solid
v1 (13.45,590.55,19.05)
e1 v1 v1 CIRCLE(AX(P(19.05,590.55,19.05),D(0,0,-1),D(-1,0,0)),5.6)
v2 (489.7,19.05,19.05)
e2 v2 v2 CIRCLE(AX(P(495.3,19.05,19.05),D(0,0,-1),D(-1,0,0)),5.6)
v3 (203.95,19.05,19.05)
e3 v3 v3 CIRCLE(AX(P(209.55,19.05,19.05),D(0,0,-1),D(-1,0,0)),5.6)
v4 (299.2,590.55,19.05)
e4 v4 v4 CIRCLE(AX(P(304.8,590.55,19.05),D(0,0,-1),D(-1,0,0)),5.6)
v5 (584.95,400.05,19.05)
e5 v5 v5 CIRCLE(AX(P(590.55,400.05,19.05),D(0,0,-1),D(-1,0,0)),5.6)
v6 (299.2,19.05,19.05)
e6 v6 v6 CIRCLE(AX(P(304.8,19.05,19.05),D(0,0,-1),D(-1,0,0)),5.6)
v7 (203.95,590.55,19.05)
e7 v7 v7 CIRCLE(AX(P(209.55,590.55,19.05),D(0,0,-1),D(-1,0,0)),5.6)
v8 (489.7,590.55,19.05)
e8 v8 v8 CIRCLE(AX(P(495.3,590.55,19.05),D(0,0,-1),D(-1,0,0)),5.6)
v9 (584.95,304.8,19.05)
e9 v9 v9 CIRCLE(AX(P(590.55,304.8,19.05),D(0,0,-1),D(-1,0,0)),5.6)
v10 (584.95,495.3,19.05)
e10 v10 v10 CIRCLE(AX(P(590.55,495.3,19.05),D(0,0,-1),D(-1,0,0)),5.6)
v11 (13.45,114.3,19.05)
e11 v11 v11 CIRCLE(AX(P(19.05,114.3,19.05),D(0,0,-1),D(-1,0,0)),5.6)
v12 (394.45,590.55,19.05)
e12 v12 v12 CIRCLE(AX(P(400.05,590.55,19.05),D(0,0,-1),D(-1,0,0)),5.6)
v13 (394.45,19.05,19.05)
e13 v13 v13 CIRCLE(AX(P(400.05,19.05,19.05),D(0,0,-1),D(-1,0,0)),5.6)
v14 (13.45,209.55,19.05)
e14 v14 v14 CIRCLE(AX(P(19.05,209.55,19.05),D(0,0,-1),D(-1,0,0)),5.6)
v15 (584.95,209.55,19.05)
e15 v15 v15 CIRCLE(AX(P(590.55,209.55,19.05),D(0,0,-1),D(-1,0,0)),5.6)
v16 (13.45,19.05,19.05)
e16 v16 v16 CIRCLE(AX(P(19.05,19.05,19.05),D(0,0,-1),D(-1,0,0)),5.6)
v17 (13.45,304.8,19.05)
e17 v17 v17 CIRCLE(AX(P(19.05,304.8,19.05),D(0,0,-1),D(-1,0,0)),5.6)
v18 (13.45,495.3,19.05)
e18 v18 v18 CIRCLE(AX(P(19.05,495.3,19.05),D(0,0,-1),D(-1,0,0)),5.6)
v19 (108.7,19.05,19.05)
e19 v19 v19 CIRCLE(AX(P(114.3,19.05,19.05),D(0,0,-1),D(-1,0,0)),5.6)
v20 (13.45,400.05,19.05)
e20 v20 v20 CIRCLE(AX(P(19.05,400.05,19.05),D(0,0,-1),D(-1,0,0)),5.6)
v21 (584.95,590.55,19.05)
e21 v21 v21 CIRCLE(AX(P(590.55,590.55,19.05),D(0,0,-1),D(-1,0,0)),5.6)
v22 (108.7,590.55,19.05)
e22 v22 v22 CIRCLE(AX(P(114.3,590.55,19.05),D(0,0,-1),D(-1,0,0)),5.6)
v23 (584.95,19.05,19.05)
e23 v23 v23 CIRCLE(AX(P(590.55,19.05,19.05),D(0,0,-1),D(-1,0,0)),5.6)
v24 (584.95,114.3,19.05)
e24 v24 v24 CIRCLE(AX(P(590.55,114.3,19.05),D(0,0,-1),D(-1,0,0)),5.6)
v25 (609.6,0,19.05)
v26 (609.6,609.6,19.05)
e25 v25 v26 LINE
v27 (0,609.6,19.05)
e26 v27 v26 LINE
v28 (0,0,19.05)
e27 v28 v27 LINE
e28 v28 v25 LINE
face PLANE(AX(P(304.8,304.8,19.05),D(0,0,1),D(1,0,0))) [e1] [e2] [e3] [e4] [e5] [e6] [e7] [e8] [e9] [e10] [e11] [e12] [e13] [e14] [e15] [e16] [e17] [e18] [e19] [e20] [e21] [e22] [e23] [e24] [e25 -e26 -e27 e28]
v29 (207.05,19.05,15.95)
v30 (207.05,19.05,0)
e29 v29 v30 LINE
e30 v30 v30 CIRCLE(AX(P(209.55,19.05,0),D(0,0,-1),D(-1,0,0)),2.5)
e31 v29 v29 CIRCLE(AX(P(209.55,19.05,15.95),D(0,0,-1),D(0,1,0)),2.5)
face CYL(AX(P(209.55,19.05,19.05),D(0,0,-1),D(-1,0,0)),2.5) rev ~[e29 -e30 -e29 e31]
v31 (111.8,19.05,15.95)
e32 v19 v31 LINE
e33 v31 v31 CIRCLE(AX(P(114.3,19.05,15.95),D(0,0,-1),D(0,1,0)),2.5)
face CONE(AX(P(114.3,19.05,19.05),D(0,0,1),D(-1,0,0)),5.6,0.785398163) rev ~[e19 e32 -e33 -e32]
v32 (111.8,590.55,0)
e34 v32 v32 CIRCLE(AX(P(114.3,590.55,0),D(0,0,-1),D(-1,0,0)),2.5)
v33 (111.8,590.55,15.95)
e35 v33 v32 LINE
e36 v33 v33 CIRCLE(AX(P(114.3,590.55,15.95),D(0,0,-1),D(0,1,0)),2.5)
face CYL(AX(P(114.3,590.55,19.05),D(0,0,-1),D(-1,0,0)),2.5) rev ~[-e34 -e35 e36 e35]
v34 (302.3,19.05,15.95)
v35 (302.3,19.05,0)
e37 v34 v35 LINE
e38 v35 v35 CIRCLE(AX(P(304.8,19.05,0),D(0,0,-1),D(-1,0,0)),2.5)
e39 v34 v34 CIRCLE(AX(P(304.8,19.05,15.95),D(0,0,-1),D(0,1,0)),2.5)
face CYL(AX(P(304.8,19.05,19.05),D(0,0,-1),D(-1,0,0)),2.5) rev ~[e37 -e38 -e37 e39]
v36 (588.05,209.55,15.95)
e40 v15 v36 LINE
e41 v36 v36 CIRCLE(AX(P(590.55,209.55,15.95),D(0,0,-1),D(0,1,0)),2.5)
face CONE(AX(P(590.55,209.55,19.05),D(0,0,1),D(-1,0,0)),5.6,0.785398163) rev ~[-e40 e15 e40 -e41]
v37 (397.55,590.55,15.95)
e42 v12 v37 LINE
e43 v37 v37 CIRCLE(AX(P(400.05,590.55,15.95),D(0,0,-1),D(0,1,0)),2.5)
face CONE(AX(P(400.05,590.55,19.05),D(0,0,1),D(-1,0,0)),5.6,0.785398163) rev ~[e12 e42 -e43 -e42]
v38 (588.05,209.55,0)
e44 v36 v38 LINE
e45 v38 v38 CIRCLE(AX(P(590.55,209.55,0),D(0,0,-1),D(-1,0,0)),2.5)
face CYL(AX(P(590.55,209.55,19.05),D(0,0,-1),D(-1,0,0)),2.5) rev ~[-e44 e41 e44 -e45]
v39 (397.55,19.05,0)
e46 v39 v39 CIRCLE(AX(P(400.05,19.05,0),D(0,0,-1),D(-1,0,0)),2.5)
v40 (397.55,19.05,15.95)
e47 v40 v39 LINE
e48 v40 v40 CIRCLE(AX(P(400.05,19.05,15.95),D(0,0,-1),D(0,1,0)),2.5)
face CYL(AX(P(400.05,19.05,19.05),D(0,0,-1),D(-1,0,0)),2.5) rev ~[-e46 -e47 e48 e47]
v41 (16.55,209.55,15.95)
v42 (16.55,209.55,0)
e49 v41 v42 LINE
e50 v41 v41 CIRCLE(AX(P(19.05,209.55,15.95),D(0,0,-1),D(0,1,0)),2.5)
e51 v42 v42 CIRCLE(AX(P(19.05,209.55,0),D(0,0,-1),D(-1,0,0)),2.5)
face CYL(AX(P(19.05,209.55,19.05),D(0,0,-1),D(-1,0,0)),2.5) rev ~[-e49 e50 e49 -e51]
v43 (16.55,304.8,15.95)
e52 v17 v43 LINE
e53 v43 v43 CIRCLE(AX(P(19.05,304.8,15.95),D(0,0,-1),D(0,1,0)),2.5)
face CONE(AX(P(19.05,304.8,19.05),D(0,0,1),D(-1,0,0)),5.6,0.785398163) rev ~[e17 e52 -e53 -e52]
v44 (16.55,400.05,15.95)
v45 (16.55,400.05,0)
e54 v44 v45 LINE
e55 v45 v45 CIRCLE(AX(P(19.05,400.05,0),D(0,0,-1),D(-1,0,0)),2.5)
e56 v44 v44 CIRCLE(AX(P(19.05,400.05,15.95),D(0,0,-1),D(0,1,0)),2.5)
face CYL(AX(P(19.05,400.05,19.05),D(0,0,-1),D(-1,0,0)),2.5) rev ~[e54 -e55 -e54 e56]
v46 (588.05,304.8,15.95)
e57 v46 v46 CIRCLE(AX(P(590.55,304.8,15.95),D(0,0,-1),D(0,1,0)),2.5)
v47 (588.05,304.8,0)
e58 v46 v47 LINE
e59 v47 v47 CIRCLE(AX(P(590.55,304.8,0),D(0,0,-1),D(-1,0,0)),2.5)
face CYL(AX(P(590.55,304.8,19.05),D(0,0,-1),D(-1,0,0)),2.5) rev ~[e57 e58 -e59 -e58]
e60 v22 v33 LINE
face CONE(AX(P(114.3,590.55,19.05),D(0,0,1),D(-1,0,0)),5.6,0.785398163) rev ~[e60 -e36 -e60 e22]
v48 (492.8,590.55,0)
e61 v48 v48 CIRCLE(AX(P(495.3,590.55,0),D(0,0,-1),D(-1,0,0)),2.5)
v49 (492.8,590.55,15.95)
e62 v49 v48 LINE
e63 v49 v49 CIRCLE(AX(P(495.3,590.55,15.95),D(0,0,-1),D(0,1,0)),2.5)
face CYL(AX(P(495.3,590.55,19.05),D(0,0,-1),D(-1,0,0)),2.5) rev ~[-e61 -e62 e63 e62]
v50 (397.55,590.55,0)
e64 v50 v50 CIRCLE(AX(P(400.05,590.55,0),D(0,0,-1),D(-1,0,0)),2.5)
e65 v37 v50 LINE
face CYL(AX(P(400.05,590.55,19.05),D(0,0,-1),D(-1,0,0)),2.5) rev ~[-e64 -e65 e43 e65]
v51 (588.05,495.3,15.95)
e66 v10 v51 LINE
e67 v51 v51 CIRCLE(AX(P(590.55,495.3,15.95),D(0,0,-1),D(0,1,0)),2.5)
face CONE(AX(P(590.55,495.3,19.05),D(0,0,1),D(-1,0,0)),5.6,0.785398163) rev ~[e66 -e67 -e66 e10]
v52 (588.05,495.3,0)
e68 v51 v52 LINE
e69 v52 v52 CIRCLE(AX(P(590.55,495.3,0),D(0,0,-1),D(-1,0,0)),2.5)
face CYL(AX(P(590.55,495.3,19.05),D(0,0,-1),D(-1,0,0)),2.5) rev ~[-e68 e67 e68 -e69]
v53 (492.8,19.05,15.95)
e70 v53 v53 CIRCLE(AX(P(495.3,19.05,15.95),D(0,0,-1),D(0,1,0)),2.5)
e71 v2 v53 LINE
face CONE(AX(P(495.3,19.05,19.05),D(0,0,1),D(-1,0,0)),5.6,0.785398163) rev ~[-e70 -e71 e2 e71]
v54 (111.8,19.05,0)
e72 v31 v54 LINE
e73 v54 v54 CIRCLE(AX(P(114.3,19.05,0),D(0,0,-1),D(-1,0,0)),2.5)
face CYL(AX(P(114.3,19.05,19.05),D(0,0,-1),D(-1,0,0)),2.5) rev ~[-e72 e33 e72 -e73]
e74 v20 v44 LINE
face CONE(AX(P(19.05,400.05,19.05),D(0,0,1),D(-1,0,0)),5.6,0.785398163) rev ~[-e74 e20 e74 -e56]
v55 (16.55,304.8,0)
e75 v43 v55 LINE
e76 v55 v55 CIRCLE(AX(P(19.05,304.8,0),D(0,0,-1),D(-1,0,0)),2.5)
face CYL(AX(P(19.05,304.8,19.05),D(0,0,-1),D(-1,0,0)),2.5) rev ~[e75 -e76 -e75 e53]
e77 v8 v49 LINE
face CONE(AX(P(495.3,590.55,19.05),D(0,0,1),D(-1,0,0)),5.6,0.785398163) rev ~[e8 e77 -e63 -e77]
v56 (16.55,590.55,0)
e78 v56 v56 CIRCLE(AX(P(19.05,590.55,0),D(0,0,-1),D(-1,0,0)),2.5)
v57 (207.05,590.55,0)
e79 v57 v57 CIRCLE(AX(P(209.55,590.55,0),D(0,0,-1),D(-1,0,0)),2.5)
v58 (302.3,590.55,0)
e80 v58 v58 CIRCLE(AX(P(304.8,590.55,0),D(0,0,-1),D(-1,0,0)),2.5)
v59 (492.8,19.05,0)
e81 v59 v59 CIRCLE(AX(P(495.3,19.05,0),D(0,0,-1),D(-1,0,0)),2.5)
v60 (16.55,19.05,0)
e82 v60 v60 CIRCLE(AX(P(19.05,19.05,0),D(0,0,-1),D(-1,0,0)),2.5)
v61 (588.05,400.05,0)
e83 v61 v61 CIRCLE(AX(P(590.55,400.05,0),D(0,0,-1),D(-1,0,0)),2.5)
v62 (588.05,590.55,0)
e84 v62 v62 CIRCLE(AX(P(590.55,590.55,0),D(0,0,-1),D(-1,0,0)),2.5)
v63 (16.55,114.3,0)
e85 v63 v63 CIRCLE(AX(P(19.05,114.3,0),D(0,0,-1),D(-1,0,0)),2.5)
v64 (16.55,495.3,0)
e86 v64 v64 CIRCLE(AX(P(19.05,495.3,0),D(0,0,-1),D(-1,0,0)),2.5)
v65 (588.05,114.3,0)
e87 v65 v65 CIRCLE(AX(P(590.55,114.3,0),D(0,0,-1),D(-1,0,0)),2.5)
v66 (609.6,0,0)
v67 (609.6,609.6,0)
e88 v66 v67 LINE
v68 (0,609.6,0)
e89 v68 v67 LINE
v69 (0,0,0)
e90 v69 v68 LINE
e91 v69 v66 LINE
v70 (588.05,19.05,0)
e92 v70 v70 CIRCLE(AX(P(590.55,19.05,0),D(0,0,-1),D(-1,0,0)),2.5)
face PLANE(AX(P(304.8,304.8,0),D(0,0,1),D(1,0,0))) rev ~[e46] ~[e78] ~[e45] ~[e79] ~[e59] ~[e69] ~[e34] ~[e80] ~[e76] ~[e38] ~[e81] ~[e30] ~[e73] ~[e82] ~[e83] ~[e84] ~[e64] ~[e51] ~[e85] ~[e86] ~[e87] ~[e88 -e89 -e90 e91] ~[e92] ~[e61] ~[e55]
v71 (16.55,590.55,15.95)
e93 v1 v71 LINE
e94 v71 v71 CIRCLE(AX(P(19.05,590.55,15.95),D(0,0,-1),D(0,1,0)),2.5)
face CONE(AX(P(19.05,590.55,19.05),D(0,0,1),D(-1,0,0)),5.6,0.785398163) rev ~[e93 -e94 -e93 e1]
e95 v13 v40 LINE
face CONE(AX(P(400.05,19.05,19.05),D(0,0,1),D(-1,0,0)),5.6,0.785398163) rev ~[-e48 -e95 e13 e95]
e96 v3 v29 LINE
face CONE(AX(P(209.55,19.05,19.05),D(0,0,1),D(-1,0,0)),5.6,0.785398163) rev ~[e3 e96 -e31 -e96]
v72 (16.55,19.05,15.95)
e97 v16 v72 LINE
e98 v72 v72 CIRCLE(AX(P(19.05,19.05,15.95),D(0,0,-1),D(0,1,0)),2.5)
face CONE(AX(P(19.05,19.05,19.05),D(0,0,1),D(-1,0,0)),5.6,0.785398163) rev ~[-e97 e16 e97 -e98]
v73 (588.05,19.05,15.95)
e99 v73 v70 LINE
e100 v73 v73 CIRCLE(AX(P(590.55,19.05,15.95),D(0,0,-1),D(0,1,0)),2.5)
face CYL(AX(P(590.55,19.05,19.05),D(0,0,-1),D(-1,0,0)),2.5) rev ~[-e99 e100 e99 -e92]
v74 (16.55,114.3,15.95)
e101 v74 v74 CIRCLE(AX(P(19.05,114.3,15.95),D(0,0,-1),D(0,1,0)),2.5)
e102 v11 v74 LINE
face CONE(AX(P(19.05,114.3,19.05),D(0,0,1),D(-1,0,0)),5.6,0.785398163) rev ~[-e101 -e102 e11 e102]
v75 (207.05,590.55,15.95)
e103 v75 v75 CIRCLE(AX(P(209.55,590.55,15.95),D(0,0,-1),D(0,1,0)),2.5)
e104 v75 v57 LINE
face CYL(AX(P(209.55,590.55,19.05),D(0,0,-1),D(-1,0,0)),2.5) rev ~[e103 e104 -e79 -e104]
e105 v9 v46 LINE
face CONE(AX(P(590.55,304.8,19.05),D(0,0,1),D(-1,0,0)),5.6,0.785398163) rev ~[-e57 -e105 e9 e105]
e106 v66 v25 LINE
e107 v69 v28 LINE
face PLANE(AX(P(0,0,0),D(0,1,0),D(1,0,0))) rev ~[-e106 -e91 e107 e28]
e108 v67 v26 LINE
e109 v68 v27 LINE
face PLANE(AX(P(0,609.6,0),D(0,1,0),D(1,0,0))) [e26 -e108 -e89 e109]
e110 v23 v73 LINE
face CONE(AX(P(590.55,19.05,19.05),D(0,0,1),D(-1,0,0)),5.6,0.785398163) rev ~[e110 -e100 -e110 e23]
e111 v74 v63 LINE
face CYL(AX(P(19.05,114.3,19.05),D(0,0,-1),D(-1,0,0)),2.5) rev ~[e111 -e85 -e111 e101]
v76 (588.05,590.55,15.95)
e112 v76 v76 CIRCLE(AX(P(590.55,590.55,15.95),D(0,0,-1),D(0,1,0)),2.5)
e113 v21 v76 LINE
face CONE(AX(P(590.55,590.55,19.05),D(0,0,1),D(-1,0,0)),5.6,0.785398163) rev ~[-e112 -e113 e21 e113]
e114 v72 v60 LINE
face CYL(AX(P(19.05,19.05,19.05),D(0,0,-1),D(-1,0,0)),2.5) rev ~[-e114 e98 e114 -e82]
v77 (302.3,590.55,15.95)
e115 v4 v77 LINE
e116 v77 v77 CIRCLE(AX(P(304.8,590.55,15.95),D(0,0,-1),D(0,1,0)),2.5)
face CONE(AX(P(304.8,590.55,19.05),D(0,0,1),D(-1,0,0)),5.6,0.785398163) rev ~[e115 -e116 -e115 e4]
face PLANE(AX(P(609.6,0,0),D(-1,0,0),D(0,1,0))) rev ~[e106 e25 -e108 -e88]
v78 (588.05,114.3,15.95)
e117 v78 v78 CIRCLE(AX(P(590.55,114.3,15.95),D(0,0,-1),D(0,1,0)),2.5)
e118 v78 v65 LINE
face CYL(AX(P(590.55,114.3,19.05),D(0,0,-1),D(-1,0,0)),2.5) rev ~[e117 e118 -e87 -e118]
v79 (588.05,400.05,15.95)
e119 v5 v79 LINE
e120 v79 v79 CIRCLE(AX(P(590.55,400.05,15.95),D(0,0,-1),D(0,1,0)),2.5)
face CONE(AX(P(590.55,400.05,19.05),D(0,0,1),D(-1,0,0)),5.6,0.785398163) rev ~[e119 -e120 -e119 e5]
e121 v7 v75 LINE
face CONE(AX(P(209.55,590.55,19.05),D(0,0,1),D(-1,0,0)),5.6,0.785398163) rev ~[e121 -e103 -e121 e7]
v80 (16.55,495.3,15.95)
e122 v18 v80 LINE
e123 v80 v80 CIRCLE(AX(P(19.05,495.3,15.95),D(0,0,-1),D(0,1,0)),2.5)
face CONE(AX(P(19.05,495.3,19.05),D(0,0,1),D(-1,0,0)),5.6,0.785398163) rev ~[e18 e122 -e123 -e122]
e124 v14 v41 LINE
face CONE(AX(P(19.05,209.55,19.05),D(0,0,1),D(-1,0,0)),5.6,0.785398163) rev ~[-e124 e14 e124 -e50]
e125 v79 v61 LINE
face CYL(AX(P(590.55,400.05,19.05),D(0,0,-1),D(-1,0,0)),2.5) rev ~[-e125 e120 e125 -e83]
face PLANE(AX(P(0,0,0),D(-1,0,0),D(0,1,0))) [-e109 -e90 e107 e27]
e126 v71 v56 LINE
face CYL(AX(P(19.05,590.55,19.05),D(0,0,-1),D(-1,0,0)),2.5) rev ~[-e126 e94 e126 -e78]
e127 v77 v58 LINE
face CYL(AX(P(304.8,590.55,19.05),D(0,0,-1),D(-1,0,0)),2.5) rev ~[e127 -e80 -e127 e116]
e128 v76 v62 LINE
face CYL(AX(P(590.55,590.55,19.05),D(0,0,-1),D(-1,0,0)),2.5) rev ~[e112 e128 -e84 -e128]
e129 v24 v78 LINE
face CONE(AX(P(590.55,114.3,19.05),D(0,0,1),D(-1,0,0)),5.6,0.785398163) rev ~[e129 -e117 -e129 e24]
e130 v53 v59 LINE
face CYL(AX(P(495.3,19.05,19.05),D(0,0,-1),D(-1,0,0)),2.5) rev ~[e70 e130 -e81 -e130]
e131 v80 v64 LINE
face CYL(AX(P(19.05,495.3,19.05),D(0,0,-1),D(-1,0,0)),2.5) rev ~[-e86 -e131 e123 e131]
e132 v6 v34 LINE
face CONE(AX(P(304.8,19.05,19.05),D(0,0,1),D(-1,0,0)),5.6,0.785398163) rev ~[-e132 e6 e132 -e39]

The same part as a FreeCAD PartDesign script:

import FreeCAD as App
import Part
import Sketcher

V = App.Vector
Q = App.Units.Quantity

doc = App.newDocument("Part")
body = doc.addObject("PartDesign::Body", "Body")

sketch1 = body.newObject("Sketcher::SketchObject", "Sketch")
sketch1.AttachmentSupport = (doc.getObject("XY_Plane"), [""])
sketch1.MapMode = "FlatFace"
sketch1.addGeometry([
    Part.LineSegment(V(0, 609.6, 0), V(0, 0, 0)),
    Part.LineSegment(V(0, 0, 0), V(609.6, 0, 0)),
    Part.LineSegment(V(609.6, 0, 0), V(609.6, 609.6, 0)),
    Part.LineSegment(V(609.6, 609.6, 0), V(0, 609.6, 0)),
], False)
sketch1.addConstraint([
    Sketcher.Constraint("Coincident", 0, 2, 1, 1),
    Sketcher.Constraint("Coincident", 1, 2, 2, 1),
    Sketcher.Constraint("Coincident", 2, 2, 3, 1),
    Sketcher.Constraint("Coincident", 3, 2, 0, 1),
    Sketcher.Constraint("Vertical", 0),
    Sketcher.Constraint("Horizontal", 1),
    Sketcher.Constraint("Vertical", 2),
    Sketcher.Constraint("Horizontal", 3),
    Sketcher.Constraint("Coincident", 0, 2, -1, 1),
    Sketcher.Constraint("Equal", 3, 0),
    Sketcher.Constraint("DistanceX", 1, 1, 1, 2, Q("24 in")),
])
pad1 = body.newObject("PartDesign::Pad", "Pad")
pad1.Profile = sketch1
pad1.Length = Q("0.75 in")

sketch2 = body.newObject("Sketcher::SketchObject", "Sketch001")
sketch2.AttachmentSupport = (doc.getObject("XY_Plane"), [""])
sketch2.MapMode = "FlatFace"
sketch2.AttachmentOffset = App.Placement(V(0, 0, 0.75 * 25.4), App.Rotation())
sketch2.addGeometry([
    Part.Circle(V(19.05, 304.8, 0), V(0, 0, 1), 2.5),
    Part.Circle(V(19.05, 400.05, 0), V(0, 0, 1), 2.5),
    Part.Circle(V(19.05, 495.3, 0), V(0, 0, 1), 2.5),
    Part.Circle(V(19.05, 590.55, 0), V(0, 0, 1), 2.5),
    Part.Circle(V(114.3, 590.55, 0), V(0, 0, 1), 2.5),
    Part.Circle(V(209.55, 590.55, 0), V(0, 0, 1), 2.5),
    Part.Circle(V(304.8, 590.55, 0), V(0, 0, 1), 2.5),
    Part.Circle(V(400.05, 590.55, 0), V(0, 0, 1), 2.5),
    Part.Circle(V(495.3, 590.55, 0), V(0, 0, 1), 2.5),
    Part.Circle(V(590.55, 590.55, 0), V(0, 0, 1), 2.5),
    Part.Circle(V(590.55, 495.3, 0), V(0, 0, 1), 2.5),
    Part.Circle(V(590.55, 400.05, 0), V(0, 0, 1), 2.5),
    Part.Circle(V(590.55, 304.8, 0), V(0, 0, 1), 2.5),
    Part.Circle(V(590.55, 209.55, 0), V(0, 0, 1), 2.5),
    Part.Circle(V(590.55, 114.3, 0), V(0, 0, 1), 2.5),
    Part.Circle(V(590.55, 19.05, 0), V(0, 0, 1), 2.5),
    Part.Circle(V(495.3, 19.05, 0), V(0, 0, 1), 2.5),
    Part.Circle(V(400.05, 19.05, 0), V(0, 0, 1), 2.5),
    Part.Circle(V(304.8, 19.05, 0), V(0, 0, 1), 2.5),
    Part.Circle(V(209.55, 19.05, 0), V(0, 0, 1), 2.5),
    Part.Circle(V(114.3, 19.05, 0), V(0, 0, 1), 2.5),
    Part.Circle(V(19.05, 19.05, 0), V(0, 0, 1), 2.5),
    Part.Circle(V(19.05, 114.3, 0), V(0, 0, 1), 2.5),
    Part.Circle(V(19.05, 209.55, 0), V(0, 0, 1), 2.5),
    Part.Circle(V(19.05, 114.3, 0), V(0, 0, 1), 2.5),
], False)
sketch2.addConstraint([
    Sketcher.Constraint("Coincident", 24, 3, 22, 3),
    Sketcher.Constraint("Equal", 0, 1),
    Sketcher.Constraint("Equal", 1, 2),
    Sketcher.Constraint("Equal", 2, 3),
    Sketcher.Constraint("Equal", 3, 4),
    Sketcher.Constraint("Equal", 4, 5),
    Sketcher.Constraint("Equal", 5, 6),
    Sketcher.Constraint("Equal", 6, 7),
    Sketcher.Constraint("Equal", 7, 8),
    Sketcher.Constraint("Equal", 8, 9),
    Sketcher.Constraint("Equal", 9, 10),
    Sketcher.Constraint("Equal", 10, 11),
    Sketcher.Constraint("Equal", 11, 12),
    Sketcher.Constraint("Equal", 12, 13),
    Sketcher.Constraint("Equal", 13, 14),
    Sketcher.Constraint("Equal", 14, 15),
    Sketcher.Constraint("Equal", 15, 16),
    Sketcher.Constraint("Equal", 16, 17),
    Sketcher.Constraint("Equal", 17, 18),
    Sketcher.Constraint("Equal", 18, 19),
    Sketcher.Constraint("Equal", 19, 20),
    Sketcher.Constraint("Equal", 20, 21),
    Sketcher.Constraint("Equal", 21, 22),
    Sketcher.Constraint("Equal", 22, 23),
    Sketcher.Constraint("Equal", 23, 24),
    Sketcher.Constraint("Horizontal", 3, 3, 4, 3),
    Sketcher.Constraint("Horizontal", 4, 3, 5, 3),
    Sketcher.Constraint("Horizontal", 5, 3, 6, 3),
    Sketcher.Constraint("Horizontal", 6, 3, 7, 3),
    Sketcher.Constraint("Horizontal", 7, 3, 8, 3),
    Sketcher.Constraint("Horizontal", 8, 3, 9, 3),
    Sketcher.Constraint("Horizontal", 2, 3, 10, 3),
    Sketcher.Constraint("Horizontal", 1, 3, 11, 3),
    Sketcher.Constraint("Horizontal", 0, 3, 12, 3),
    Sketcher.Constraint("Horizontal", 15, 3, 16, 3),
    Sketcher.Constraint("Horizontal", 16, 3, 17, 3),
    Sketcher.Constraint("Horizontal", 17, 3, 18, 3),
    Sketcher.Constraint("Horizontal", 18, 3, 19, 3),
    Sketcher.Constraint("Horizontal", 19, 3, 20, 3),
    Sketcher.Constraint("Horizontal", 20, 3, 21, 3),
    Sketcher.Constraint("Horizontal", 14, 3, 22, 3),
    Sketcher.Constraint("Horizontal", 13, 3, 23, 3),
    Sketcher.Constraint("Vertical", 0, 3, 1, 3),
    Sketcher.Constraint("Vertical", 1, 3, 2, 3),
    Sketcher.Constraint("Vertical", 2, 3, 3, 3),
    Sketcher.Constraint("Vertical", 9, 3, 10, 3),
    Sketcher.Constraint("Vertical", 10, 3, 11, 3),
    Sketcher.Constraint("Vertical", 11, 3, 12, 3),
    Sketcher.Constraint("Vertical", 12, 3, 13, 3),
    Sketcher.Constraint("Vertical", 13, 3, 14, 3),
    Sketcher.Constraint("Vertical", 14, 3, 15, 3),
    Sketcher.Constraint("Vertical", 8, 3, 16, 3),
    Sketcher.Constraint("Vertical", 7, 3, 17, 3),
    Sketcher.Constraint("Vertical", 6, 3, 18, 3),
    Sketcher.Constraint("Vertical", 5, 3, 19, 3),
    Sketcher.Constraint("Vertical", 4, 3, 20, 3),
    Sketcher.Constraint("Vertical", 3, 3, 21, 3),
    Sketcher.Constraint("Vertical", 21, 3, 22, 3),
    Sketcher.Constraint("Vertical", 22, 3, 23, 3),
    Sketcher.Constraint("DistanceY", -1, 1, 0, 3, Q("12 in")),
    Sketcher.Constraint("DistanceX", -1, 1, 6, 3, Q("12 in")),
    Sketcher.Constraint("DistanceX", 3, 3, 7, 3, Q("15 in")),
    Sketcher.Constraint("DistanceX", 4, 3, 8, 3, Q("15 in")),
    Sketcher.Constraint("DistanceX", 5, 3, 9, 3, Q("15 in")),
    Sketcher.Constraint("DistanceY", 13, 3, 9, 3, Q("15 in")),
    Sketcher.Constraint("DistanceY", 14, 3, 10, 3, Q("15 in")),
    Sketcher.Constraint("DistanceY", 15, 3, 11, 3, Q("15 in")),
    Sketcher.Constraint("DistanceY", -1, 1, 2, 3, Q("19.5 in")),
    Sketcher.Constraint("DistanceX", -1, 1, 4, 3, Q("4.5 in")),
    Sketcher.Constraint("DistanceY", 1, 3, 3, 3, Q("7.5 in")),
    Sketcher.Constraint("DistanceX", 3, 3, 5, 3, Q("7.5 in")),
    Sketcher.Constraint("Diameter", 0, Q("5 mm")),
    Sketcher.Constraint("DistanceX", -1, 1, 0, 3, Q("0.75 in")),
    Sketcher.Constraint("DistanceY", -1, 1, 1, 3, Q("15.75 in")),
])
doc.recompute()
hole = body.newObject("PartDesign::Hole", "Hole")
hole.Profile = sketch2
hole.ThreadType = "None"
hole.Diameter = 5
hole.DepthType = "ThroughAll"
hole.HoleCutType = "Countersink"
hole.HoleCutDiameter = 11.2
hole.HoleCutCountersinkAngle = 90

doc.recompute()
